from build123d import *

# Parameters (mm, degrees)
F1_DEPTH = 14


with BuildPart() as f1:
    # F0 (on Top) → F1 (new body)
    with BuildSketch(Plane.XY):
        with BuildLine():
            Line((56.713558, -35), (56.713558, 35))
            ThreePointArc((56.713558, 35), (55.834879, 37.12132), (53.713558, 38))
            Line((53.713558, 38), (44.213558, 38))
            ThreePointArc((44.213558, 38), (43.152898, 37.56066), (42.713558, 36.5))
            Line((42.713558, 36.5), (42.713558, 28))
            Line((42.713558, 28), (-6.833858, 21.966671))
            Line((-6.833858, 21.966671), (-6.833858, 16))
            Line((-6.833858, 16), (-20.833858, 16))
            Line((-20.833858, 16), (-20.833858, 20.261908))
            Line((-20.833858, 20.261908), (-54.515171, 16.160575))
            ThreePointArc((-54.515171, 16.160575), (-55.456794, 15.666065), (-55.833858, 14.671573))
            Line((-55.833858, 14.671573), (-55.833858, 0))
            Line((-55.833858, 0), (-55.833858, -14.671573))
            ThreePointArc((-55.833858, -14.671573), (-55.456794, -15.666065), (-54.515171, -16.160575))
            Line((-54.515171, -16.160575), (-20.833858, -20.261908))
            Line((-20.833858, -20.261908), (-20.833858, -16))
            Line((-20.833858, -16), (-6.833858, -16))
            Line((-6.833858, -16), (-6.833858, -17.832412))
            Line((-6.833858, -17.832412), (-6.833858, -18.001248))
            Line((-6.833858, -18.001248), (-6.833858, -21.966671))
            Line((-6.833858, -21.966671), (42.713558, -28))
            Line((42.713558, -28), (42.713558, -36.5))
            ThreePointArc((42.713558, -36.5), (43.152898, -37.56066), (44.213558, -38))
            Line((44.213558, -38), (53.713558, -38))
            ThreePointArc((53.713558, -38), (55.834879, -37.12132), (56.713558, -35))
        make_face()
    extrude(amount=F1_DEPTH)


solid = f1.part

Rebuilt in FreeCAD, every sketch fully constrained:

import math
import FreeCAD as App
import Part
import Sketcher

V = App.Vector
Q = App.Units.Quantity

doc = App.newDocument("Part")
body = doc.addObject("PartDesign::Body", "Body")

sketch1 = doc.addObject("Sketcher::SketchObject", "Sketch")
body.addObject(sketch1)
sketch1.AttachmentSupport = (doc.XY_Plane, [""])
sketch1.MapMode = "FlatFace"
sketch1.addGeometry(Part.LineSegment(V(56.7, -35, 0), V(56.7, 35, 0)), False)
sketch1.addGeometry(Part.ArcOfCircle(Part.Circle(V(53.7, 35, 0), V(0, 0, 1), 3), math.radians(0), math.radians(90)), False)
sketch1.addGeometry(Part.LineSegment(V(53.7, 38, 0), V(44.2, 38, 0)), False)
sketch1.addGeometry(Part.ArcOfCircle(Part.Circle(V(44.2, 36.5, 0), V(0, 0, 1), 1.5), math.radians(90), math.radians(180)), False)
sketch1.addGeometry(Part.LineSegment(V(42.7, 36.5, 0), V(42.7, 28, 0)), False)
sketch1.addGeometry(Part.LineSegment(V(42.7, 28, 0), V(-6.8, 22, 0)), False)
sketch1.addGeometry(Part.LineSegment(V(-6.8, 22, 0), V(-6.8, 16, 0)), False)
sketch1.addGeometry(Part.LineSegment(V(-6.8, 16, 0), V(-20.8, 16, 0)), False)
sketch1.addGeometry(Part.LineSegment(V(-20.8, 16, 0), V(-20.8, 20.3, 0)), False)
sketch1.addGeometry(Part.LineSegment(V(-20.8, 20.3, 0), V(-54.5, 16.2, 0)), False)
sketch1.addGeometry(Part.ArcOfCircle(Part.Circle(V(-54.3, 14.7, 0), V(0, 0, 1), 1.5), math.radians(97), math.radians(180)), False)
sketch1.addGeometry(Part.LineSegment(V(-55.8, 14.7, 0), V(-55.8, -14.7, 0)), False)
sketch1.addGeometry(Part.ArcOfCircle(Part.Circle(V(-54.3, -14.7, 0), V(0, 0, 1), 1.5), math.radians(-180), math.radians(-97)), False)
sketch1.addGeometry(Part.LineSegment(V(-54.5, -16.2, 0), V(-20.8, -20.3, 0)), False)
sketch1.addGeometry(Part.LineSegment(V(-20.8, -20.3, 0), V(-20.8, -16, 0)), False)
sketch1.addGeometry(Part.LineSegment(V(-20.8, -16, 0), V(-6.8, -16, 0)), False)
sketch1.addGeometry(Part.LineSegment(V(-6.8, -16, 0), V(-6.8, -22, 0)), False)
sketch1.addGeometry(Part.LineSegment(V(-6.8, -22, 0), V(42.7, -28, 0)), False)
sketch1.addGeometry(Part.LineSegment(V(42.7, -28, 0), V(42.7, -36.5, 0)), False)
sketch1.addGeometry(Part.ArcOfCircle(Part.Circle(V(44.2, -36.5, 0), V(0, 0, 1), 1.5), math.radians(-180), math.radians(-90)), False)
sketch1.addGeometry(Part.LineSegment(V(44.2, -38, 0), V(53.7, -38, 0)), False)
sketch1.addGeometry(Part.ArcOfCircle(Part.Circle(V(53.7, -35, 0), V(0, 0, 1), 3), math.radians(-90), math.radians(0)), False)
sketch1.addConstraint(Sketcher.Constraint("Tangent", 0, 2, 1, 1))
sketch1.addConstraint(Sketcher.Constraint("Tangent", 1, 2, 2, 1))
sketch1.addConstraint(Sketcher.Constraint("Tangent", 2, 2, 3, 1))
sketch1.addConstraint(Sketcher.Constraint("Tangent", 3, 2, 4, 1))
sketch1.addConstraint(Sketcher.Constraint("Coincident", 4, 2, 5, 1))
sketch1.addConstraint(Sketcher.Constraint("Coincident", 5, 2, 6, 1))
sketch1.addConstraint(Sketcher.Constraint("Coincident", 6, 2, 7, 1))
sketch1.addConstraint(Sketcher.Constraint("Coincident", 7, 2, 8, 1))
sketch1.addConstraint(Sketcher.Constraint("Coincident", 8, 2, 9, 1))
sketch1.addConstraint(Sketcher.Constraint("Tangent", 9, 2, 10, 1))
sketch1.addConstraint(Sketcher.Constraint("Tangent", 10, 2, 11, 1))
sketch1.addConstraint(Sketcher.Constraint("Tangent", 11, 2, 12, 1))
sketch1.addConstraint(Sketcher.Constraint("Tangent", 12, 2, 13, 1))
sketch1.addConstraint(Sketcher.Constraint("Coincident", 13, 2, 14, 1))
sketch1.addConstraint(Sketcher.Constraint("Coincident", 14, 2, 15, 1))
sketch1.addConstraint(Sketcher.Constraint("Coincident", 15, 2, 16, 1))
sketch1.addConstraint(Sketcher.Constraint("Coincident", 16, 2, 17, 1))
sketch1.addConstraint(Sketcher.Constraint("Coincident", 17, 2, 18, 1))
sketch1.addConstraint(Sketcher.Constraint("Tangent", 18, 2, 19, 1))
sketch1.addConstraint(Sketcher.Constraint("Tangent", 19, 2, 20, 1))
sketch1.addConstraint(Sketcher.Constraint("Tangent", 20, 2, 21, 1))
sketch1.addConstraint(Sketcher.Constraint("Tangent", 21, 2, 0, 1))
sketch1.addConstraint(Sketcher.Constraint("Vertical", 0))
sketch1.addConstraint(Sketcher.Constraint("Horizontal", 2))
sketch1.addConstraint(Sketcher.Constraint("Vertical", 4))
sketch1.addConstraint(Sketcher.Constraint("Vertical", 6))
sketch1.addConstraint(Sketcher.Constraint("Horizontal", 7))
sketch1.addConstraint(Sketcher.Constraint("Vertical", 8))
sketch1.addConstraint(Sketcher.Constraint("Vertical", 11))
sketch1.addConstraint(Sketcher.Constraint("Vertical", 14))
sketch1.addConstraint(Sketcher.Constraint("Horizontal", 15))
sketch1.addConstraint(Sketcher.Constraint("Vertical", 16))
sketch1.addConstraint(Sketcher.Constraint("Vertical", 18))
sketch1.addConstraint(Sketcher.Constraint("Horizontal", 20))
sketch1.addConstraint(Sketcher.Constraint("Equal", 3, 10))
sketch1.addConstraint(Sketcher.Constraint("Equal", 10, 12))
sketch1.addConstraint(Sketcher.Constraint("Equal", 12, 19))
sketch1.addConstraint(Sketcher.Constraint("Equal", 1, 21))
sketch1.addConstraint(Sketcher.Constraint("Symmetric", 3, 3, 19, 3, -1))
sketch1.addConstraint(Sketcher.Constraint("Symmetric", 9, 2, 12, 2, -1))
sketch1.addConstraint(Sketcher.Constraint("Symmetric", 7, 2, 14, 2, -1))
sketch1.addConstraint(Sketcher.Constraint("Symmetric", 5, 2, 16, 2, -1))
sketch1.addConstraint(Sketcher.Constraint("Parallel", 5, 9))
sketch1.addConstraint(Sketcher.Constraint("Parallel", 13, 17))
sketch1.addConstraint(Sketcher.Constraint("Radius", 1, Q("2.999999 mm")))
sketch1.addConstraint(Sketcher.Constraint("Radius", 3, Q("1.500001 mm")))
sketch1.addConstraint(Sketcher.Constraint("DistanceX", 7, 2, 7, 1, Q("14 mm")))
sketch1.addConstraint(Sketcher.Constraint("DistanceY", 0, 1, 0, 2, Q("70 mm")))
sketch1.addConstraint(Sketcher.Constraint("DistanceX", 2, 2, 2, 1, Q("9.5 mm")))
sketch1.addConstraint(Sketcher.Constraint("DistanceY", 4, 2, 4, 1, Q("8.5 mm")))
sketch1.addConstraint(Sketcher.Constraint("DistanceY", -1, 1, 6, 2, Q("16 mm")))
sketch1.addConstraint(Sketcher.Constraint("DistanceX", 10, 2, 7, 2, Q("35 mm")))
sketch1.addConstraint(Sketcher.Constraint("Distance", 5, Q("49.9134 mm")))
sketch1.addConstraint(Sketcher.Constraint("Distance", 9, Q("33.930101 mm")))
sketch1.addConstraint(Sketcher.Constraint("DistanceY", 10, 3, 5, 2, Q("7.295099 mm")))
sketch1.addConstraint(Sketcher.Constraint("DistanceX", -1, 1, 1, 3, Q("53.713559 mm")))
pad1 = doc.addObject("PartDesign::Pad", "Pad")
body.addObject(pad1)
pad1.Profile = sketch1
pad1.Length = 14

doc.recompute()
